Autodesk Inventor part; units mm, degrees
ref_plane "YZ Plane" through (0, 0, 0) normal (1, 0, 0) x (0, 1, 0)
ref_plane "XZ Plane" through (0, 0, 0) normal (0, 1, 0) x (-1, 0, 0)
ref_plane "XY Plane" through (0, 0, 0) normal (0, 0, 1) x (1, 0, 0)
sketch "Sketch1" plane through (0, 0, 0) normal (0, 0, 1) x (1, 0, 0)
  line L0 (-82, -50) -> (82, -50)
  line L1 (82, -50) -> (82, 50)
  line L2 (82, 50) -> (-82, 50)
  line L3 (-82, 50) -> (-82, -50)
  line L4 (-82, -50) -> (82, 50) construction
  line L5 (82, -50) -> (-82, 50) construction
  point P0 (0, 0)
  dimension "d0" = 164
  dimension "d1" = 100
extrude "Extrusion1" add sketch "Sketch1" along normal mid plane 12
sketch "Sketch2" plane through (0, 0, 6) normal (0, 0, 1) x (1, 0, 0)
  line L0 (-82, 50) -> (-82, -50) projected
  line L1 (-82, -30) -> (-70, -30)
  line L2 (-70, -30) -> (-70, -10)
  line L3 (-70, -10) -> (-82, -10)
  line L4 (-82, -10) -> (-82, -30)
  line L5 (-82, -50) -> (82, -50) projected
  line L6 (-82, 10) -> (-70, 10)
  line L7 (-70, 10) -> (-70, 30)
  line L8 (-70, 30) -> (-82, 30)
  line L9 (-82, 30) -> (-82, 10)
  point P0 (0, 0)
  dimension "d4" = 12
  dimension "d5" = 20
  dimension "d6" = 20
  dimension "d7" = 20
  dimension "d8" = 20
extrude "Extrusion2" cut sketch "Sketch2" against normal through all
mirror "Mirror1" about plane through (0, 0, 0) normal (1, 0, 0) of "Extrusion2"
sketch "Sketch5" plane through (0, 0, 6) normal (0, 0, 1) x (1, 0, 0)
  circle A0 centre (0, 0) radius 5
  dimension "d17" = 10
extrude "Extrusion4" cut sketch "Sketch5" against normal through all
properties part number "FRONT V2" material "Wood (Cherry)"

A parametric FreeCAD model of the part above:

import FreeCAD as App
import Part
import Sketcher

V = App.Vector
Q = App.Units.Quantity

doc = App.newDocument("Part")
body = doc.addObject("PartDesign::Body", "Body")

# Sketch on XY plane
sketch1 = body.newObject("Sketcher::SketchObject", "Sketch")
sketch1.AttachmentSupport = (doc.getObject("XY_Plane"), [""])
sketch1.MapMode = "FlatFace"
sketch1.addGeometry([
    Part.LineSegment(V(-82, 50, 0), V(-82, -50, 0)),
    Part.LineSegment(V(-82, -50, 0), V(82, -50, 0)),
    Part.LineSegment(V(82, -50, 0), V(82, 50, 0)),
    Part.LineSegment(V(82, 50, 0), V(-82, 50, 0)),
], False)
sketch1.addConstraint([
    Sketcher.Constraint("Coincident", 0, 2, 1, 1),
    Sketcher.Constraint("Coincident", 1, 2, 2, 1),
    Sketcher.Constraint("Coincident", 2, 2, 3, 1),
    Sketcher.Constraint("Coincident", 3, 2, 0, 1),
    Sketcher.Constraint("Vertical", 0),
    Sketcher.Constraint("Horizontal", 1),
    Sketcher.Constraint("Vertical", 2),
    Sketcher.Constraint("Horizontal", 3),
    Sketcher.Constraint("Symmetric", 0, 2, 2, 2, -1, 1),
    Sketcher.Constraint("DistanceX", 1, 1, 1, 2, Q("164 mm")),
    Sketcher.Constraint("DistanceY", 0, 2, 0, 1, Q("100 mm")),
])
pad1 = body.newObject("PartDesign::Pad", "Pad")
pad1.Profile = sketch1
pad1.Length = 12
pad1.Midplane = True

# Sketch on XY plane
sketch2 = body.newObject("Sketcher::SketchObject", "Sketch001")
sketch2.AttachmentSupport = (doc.getObject("XY_Plane"), [""])
sketch2.MapMode = "FlatFace"
sketch2.AttachmentOffset = App.Placement(V(0, 0, 6), App.Rotation())
sketch2.addGeometry([
    Part.LineSegment(V(-70, 30, 0), V(-82, 30, 0)),  # 0
    Part.LineSegment(V(-82, 30, 0), V(-82, 10, 0)),  # 1
    Part.LineSegment(V(-82, 10, 0), V(-70, 10, 0)),  # 2
    Part.LineSegment(V(-70, 10, 0), V(-70, 30, 0)),  # 3
    Part.LineSegment(V(-70, -10, 0), V(-82, -10, 0)),  # 4
    Part.LineSegment(V(-82, -10, 0), V(-82, -30, 0)),  # 5
    Part.LineSegment(V(-82, -30, 0), V(-70, -30, 0)),  # 6
    Part.LineSegment(V(-70, -30, 0), V(-70, -10, 0)),  # 7
], False)
sketch2.addConstraint([
    Sketcher.Constraint("Coincident", 0, 2, 1, 1),
    Sketcher.Constraint("Coincident", 1, 2, 2, 1),
    Sketcher.Constraint("Coincident", 2, 2, 3, 1),
    Sketcher.Constraint("Coincident", 3, 2, 0, 1),
    Sketcher.Constraint("Coincident", 4, 2, 5, 1),
    Sketcher.Constraint("Coincident", 5, 2, 6, 1),
    Sketcher.Constraint("Coincident", 6, 2, 7, 1),
    Sketcher.Constraint("Coincident", 7, 2, 4, 1),
    Sketcher.Constraint("Horizontal", 0),
    Sketcher.Constraint("Vertical", 1),
    Sketcher.Constraint("Horizontal", 2),
    Sketcher.Constraint("Vertical", 3),
    Sketcher.Constraint("Horizontal", 4),
    Sketcher.Constraint("Vertical", 5),
    Sketcher.Constraint("Horizontal", 6),
    Sketcher.Constraint("Vertical", 7),
    Sketcher.Constraint("Symmetric", 1, 2, 4, 2, -1),
    Sketcher.Constraint("Symmetric", 3, 2, 6, 2, -1),
    Sketcher.Constraint("DistanceX", 0, 2, 0, 1, Q("12 mm")),
    Sketcher.Constraint("DistanceY", 1, 2, 1, 1, Q("20 mm")),
    Sketcher.Constraint("DistanceY", 4, 2, 1, 2, Q("20 mm")),
    Sketcher.Constraint("DistanceX", 0, 2, -1, 1, Q("82 mm")),
])
pocket1 = body.newObject("PartDesign::Pocket", "Pocket")
pocket1.Profile = sketch2
pocket1.Type = "ThroughAll"
doc.recompute()

mirrored = body.newObject("PartDesign::Mirrored", "Mirrored")
mirrored.Originals = [pocket1]
mirrored.MirrorPlane = (doc.getObject("YZ_Plane"), [""])
body.Tip = mirrored

# Sketch on XY plane
sketch3 = body.newObject("Sketcher::SketchObject", "Sketch002")
sketch3.AttachmentSupport = (doc.getObject("XY_Plane"), [""])
sketch3.MapMode = "FlatFace"
sketch3.AttachmentOffset = App.Placement(V(0, 0, 6), App.Rotation())
sketch3.addGeometry(Part.Circle(V(0, 0, 0), V(0, 0, 1), 5), False)
sketch3.addConstraint([
    Sketcher.Constraint("Coincident", 0, 3, -1, 1),
    Sketcher.Constraint("Diameter", 0, Q("10 mm")),
])
pocket2 = body.newObject("PartDesign::Pocket", "Pocket001")
pocket2.Profile = sketch3
pocket2.Type = "ThroughAll"

doc.recompute()
